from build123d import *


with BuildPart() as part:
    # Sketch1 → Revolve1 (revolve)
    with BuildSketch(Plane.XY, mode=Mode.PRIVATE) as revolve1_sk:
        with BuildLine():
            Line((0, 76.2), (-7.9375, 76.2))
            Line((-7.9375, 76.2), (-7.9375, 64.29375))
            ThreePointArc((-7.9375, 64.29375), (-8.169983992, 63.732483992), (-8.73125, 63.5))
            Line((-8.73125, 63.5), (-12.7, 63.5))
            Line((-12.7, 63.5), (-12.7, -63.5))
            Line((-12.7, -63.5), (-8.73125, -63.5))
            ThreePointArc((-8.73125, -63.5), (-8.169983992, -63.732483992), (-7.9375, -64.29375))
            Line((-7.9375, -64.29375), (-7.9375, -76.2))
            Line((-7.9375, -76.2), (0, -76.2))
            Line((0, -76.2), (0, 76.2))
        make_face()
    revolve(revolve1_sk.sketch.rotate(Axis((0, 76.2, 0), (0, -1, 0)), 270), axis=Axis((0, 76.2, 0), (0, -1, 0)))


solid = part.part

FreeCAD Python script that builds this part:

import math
import FreeCAD as App
import Part
import Sketcher

V = App.Vector
Q = App.Units.Quantity

doc = App.newDocument("Part")
body = doc.addObject("PartDesign::Body", "Body")

# Sketch on XY plane
sketch1 = doc.addObject("Sketcher::SketchObject", "Sketch")
body.addObject(sketch1)
sketch1.AttachmentSupport = (doc.XY_Plane, [""])
sketch1.MapMode = "FlatFace"
sketch1.addGeometry([
    Part.LineSegment(V(0, 76.2, 0), V(-7.9375, 76.2, 0)),  # 0
    Part.LineSegment(V(-7.9375, 76.2, 0), V(-7.9375, 64.29375, 0)),  # 1
    Part.ArcOfCircle(Part.Circle(V(-8.73125, 64.29375, 0), V(0, 0, 1), 0.79375), math.radians(-90), math.radians(0)),  # 2
    Part.LineSegment(V(-8.73125, 63.5, 0), V(-12.7, 63.5, 0)),  # 3
    Part.LineSegment(V(-12.7, 63.5, 0), V(-12.7, -63.5, 0)),  # 4
    Part.LineSegment(V(-12.7, -63.5, 0), V(-8.73125, -63.5, 0)),  # 5
    Part.ArcOfCircle(Part.Circle(V(-8.73125, -64.29375, 0), V(0, 0, 1), 0.79375), math.radians(0), math.radians(90)),  # 6
    Part.LineSegment(V(-7.9375, -64.29375, 0), V(-7.9375, -76.2, 0)),  # 7
    Part.LineSegment(V(-7.9375, -76.2, 0), V(0, -76.2, 0)),  # 8
    Part.LineSegment(V(0, -76.2, 0), V(0, 76.2, 0)),  # 9
], False)
sketch1.addConstraint([
    Sketcher.Constraint("Coincident", 0, 2, 1, 1),
    Sketcher.Constraint("Tangent", 1, 2, 2, 2),
    Sketcher.Constraint("Tangent", 2, 1, 3, 1),
    Sketcher.Constraint("Coincident", 3, 2, 4, 1),
    Sketcher.Constraint("Coincident", 4, 2, 5, 1),
    Sketcher.Constraint("Tangent", 5, 2, 6, 2),
    Sketcher.Constraint("Tangent", 6, 1, 7, 1),
    Sketcher.Constraint("Coincident", 7, 2, 8, 1),
    Sketcher.Constraint("Coincident", 8, 2, 9, 1),
    Sketcher.Constraint("Coincident", 9, 2, 0, 1),
    Sketcher.Constraint("Horizontal", 0),
    Sketcher.Constraint("Vertical", 1),
    Sketcher.Constraint("Horizontal", 3),
    Sketcher.Constraint("Vertical", 4),
    Sketcher.Constraint("Horizontal", 5),
    Sketcher.Constraint("Vertical", 7),
    Sketcher.Constraint("Horizontal", 8),
    Sketcher.Constraint("Vertical", 9),
    Sketcher.Constraint("Equal", 2, 6),
    Sketcher.Constraint("Symmetric", 8, 2, 9, 2, -1, 1),
    Sketcher.Constraint("Symmetric", 2, 3, 6, 3, -1),
    Sketcher.Constraint("DistanceY", 4, 2, 4, 1, Q("5 in")),
    Sketcher.Constraint("DistanceY", 9, 1, 9, 2, Q("6 in")),
    Sketcher.Constraint("Radius", 2, Q("0.03125 in")),
    Sketcher.Constraint("DistanceX", 3, 2, -1, 1, Q("0.5 in")),
    Sketcher.Constraint("DistanceX", 0, 2, 0, 1, Q("0.3125 in")),
])
revolution = doc.addObject("PartDesign::Revolution", "Revolution")
body.addObject(revolution)
revolution.Profile = sketch1
revolution.ReferenceAxis = (sketch1, ["V_Axis"])
revolution.Angle = 360

doc.recompute()
